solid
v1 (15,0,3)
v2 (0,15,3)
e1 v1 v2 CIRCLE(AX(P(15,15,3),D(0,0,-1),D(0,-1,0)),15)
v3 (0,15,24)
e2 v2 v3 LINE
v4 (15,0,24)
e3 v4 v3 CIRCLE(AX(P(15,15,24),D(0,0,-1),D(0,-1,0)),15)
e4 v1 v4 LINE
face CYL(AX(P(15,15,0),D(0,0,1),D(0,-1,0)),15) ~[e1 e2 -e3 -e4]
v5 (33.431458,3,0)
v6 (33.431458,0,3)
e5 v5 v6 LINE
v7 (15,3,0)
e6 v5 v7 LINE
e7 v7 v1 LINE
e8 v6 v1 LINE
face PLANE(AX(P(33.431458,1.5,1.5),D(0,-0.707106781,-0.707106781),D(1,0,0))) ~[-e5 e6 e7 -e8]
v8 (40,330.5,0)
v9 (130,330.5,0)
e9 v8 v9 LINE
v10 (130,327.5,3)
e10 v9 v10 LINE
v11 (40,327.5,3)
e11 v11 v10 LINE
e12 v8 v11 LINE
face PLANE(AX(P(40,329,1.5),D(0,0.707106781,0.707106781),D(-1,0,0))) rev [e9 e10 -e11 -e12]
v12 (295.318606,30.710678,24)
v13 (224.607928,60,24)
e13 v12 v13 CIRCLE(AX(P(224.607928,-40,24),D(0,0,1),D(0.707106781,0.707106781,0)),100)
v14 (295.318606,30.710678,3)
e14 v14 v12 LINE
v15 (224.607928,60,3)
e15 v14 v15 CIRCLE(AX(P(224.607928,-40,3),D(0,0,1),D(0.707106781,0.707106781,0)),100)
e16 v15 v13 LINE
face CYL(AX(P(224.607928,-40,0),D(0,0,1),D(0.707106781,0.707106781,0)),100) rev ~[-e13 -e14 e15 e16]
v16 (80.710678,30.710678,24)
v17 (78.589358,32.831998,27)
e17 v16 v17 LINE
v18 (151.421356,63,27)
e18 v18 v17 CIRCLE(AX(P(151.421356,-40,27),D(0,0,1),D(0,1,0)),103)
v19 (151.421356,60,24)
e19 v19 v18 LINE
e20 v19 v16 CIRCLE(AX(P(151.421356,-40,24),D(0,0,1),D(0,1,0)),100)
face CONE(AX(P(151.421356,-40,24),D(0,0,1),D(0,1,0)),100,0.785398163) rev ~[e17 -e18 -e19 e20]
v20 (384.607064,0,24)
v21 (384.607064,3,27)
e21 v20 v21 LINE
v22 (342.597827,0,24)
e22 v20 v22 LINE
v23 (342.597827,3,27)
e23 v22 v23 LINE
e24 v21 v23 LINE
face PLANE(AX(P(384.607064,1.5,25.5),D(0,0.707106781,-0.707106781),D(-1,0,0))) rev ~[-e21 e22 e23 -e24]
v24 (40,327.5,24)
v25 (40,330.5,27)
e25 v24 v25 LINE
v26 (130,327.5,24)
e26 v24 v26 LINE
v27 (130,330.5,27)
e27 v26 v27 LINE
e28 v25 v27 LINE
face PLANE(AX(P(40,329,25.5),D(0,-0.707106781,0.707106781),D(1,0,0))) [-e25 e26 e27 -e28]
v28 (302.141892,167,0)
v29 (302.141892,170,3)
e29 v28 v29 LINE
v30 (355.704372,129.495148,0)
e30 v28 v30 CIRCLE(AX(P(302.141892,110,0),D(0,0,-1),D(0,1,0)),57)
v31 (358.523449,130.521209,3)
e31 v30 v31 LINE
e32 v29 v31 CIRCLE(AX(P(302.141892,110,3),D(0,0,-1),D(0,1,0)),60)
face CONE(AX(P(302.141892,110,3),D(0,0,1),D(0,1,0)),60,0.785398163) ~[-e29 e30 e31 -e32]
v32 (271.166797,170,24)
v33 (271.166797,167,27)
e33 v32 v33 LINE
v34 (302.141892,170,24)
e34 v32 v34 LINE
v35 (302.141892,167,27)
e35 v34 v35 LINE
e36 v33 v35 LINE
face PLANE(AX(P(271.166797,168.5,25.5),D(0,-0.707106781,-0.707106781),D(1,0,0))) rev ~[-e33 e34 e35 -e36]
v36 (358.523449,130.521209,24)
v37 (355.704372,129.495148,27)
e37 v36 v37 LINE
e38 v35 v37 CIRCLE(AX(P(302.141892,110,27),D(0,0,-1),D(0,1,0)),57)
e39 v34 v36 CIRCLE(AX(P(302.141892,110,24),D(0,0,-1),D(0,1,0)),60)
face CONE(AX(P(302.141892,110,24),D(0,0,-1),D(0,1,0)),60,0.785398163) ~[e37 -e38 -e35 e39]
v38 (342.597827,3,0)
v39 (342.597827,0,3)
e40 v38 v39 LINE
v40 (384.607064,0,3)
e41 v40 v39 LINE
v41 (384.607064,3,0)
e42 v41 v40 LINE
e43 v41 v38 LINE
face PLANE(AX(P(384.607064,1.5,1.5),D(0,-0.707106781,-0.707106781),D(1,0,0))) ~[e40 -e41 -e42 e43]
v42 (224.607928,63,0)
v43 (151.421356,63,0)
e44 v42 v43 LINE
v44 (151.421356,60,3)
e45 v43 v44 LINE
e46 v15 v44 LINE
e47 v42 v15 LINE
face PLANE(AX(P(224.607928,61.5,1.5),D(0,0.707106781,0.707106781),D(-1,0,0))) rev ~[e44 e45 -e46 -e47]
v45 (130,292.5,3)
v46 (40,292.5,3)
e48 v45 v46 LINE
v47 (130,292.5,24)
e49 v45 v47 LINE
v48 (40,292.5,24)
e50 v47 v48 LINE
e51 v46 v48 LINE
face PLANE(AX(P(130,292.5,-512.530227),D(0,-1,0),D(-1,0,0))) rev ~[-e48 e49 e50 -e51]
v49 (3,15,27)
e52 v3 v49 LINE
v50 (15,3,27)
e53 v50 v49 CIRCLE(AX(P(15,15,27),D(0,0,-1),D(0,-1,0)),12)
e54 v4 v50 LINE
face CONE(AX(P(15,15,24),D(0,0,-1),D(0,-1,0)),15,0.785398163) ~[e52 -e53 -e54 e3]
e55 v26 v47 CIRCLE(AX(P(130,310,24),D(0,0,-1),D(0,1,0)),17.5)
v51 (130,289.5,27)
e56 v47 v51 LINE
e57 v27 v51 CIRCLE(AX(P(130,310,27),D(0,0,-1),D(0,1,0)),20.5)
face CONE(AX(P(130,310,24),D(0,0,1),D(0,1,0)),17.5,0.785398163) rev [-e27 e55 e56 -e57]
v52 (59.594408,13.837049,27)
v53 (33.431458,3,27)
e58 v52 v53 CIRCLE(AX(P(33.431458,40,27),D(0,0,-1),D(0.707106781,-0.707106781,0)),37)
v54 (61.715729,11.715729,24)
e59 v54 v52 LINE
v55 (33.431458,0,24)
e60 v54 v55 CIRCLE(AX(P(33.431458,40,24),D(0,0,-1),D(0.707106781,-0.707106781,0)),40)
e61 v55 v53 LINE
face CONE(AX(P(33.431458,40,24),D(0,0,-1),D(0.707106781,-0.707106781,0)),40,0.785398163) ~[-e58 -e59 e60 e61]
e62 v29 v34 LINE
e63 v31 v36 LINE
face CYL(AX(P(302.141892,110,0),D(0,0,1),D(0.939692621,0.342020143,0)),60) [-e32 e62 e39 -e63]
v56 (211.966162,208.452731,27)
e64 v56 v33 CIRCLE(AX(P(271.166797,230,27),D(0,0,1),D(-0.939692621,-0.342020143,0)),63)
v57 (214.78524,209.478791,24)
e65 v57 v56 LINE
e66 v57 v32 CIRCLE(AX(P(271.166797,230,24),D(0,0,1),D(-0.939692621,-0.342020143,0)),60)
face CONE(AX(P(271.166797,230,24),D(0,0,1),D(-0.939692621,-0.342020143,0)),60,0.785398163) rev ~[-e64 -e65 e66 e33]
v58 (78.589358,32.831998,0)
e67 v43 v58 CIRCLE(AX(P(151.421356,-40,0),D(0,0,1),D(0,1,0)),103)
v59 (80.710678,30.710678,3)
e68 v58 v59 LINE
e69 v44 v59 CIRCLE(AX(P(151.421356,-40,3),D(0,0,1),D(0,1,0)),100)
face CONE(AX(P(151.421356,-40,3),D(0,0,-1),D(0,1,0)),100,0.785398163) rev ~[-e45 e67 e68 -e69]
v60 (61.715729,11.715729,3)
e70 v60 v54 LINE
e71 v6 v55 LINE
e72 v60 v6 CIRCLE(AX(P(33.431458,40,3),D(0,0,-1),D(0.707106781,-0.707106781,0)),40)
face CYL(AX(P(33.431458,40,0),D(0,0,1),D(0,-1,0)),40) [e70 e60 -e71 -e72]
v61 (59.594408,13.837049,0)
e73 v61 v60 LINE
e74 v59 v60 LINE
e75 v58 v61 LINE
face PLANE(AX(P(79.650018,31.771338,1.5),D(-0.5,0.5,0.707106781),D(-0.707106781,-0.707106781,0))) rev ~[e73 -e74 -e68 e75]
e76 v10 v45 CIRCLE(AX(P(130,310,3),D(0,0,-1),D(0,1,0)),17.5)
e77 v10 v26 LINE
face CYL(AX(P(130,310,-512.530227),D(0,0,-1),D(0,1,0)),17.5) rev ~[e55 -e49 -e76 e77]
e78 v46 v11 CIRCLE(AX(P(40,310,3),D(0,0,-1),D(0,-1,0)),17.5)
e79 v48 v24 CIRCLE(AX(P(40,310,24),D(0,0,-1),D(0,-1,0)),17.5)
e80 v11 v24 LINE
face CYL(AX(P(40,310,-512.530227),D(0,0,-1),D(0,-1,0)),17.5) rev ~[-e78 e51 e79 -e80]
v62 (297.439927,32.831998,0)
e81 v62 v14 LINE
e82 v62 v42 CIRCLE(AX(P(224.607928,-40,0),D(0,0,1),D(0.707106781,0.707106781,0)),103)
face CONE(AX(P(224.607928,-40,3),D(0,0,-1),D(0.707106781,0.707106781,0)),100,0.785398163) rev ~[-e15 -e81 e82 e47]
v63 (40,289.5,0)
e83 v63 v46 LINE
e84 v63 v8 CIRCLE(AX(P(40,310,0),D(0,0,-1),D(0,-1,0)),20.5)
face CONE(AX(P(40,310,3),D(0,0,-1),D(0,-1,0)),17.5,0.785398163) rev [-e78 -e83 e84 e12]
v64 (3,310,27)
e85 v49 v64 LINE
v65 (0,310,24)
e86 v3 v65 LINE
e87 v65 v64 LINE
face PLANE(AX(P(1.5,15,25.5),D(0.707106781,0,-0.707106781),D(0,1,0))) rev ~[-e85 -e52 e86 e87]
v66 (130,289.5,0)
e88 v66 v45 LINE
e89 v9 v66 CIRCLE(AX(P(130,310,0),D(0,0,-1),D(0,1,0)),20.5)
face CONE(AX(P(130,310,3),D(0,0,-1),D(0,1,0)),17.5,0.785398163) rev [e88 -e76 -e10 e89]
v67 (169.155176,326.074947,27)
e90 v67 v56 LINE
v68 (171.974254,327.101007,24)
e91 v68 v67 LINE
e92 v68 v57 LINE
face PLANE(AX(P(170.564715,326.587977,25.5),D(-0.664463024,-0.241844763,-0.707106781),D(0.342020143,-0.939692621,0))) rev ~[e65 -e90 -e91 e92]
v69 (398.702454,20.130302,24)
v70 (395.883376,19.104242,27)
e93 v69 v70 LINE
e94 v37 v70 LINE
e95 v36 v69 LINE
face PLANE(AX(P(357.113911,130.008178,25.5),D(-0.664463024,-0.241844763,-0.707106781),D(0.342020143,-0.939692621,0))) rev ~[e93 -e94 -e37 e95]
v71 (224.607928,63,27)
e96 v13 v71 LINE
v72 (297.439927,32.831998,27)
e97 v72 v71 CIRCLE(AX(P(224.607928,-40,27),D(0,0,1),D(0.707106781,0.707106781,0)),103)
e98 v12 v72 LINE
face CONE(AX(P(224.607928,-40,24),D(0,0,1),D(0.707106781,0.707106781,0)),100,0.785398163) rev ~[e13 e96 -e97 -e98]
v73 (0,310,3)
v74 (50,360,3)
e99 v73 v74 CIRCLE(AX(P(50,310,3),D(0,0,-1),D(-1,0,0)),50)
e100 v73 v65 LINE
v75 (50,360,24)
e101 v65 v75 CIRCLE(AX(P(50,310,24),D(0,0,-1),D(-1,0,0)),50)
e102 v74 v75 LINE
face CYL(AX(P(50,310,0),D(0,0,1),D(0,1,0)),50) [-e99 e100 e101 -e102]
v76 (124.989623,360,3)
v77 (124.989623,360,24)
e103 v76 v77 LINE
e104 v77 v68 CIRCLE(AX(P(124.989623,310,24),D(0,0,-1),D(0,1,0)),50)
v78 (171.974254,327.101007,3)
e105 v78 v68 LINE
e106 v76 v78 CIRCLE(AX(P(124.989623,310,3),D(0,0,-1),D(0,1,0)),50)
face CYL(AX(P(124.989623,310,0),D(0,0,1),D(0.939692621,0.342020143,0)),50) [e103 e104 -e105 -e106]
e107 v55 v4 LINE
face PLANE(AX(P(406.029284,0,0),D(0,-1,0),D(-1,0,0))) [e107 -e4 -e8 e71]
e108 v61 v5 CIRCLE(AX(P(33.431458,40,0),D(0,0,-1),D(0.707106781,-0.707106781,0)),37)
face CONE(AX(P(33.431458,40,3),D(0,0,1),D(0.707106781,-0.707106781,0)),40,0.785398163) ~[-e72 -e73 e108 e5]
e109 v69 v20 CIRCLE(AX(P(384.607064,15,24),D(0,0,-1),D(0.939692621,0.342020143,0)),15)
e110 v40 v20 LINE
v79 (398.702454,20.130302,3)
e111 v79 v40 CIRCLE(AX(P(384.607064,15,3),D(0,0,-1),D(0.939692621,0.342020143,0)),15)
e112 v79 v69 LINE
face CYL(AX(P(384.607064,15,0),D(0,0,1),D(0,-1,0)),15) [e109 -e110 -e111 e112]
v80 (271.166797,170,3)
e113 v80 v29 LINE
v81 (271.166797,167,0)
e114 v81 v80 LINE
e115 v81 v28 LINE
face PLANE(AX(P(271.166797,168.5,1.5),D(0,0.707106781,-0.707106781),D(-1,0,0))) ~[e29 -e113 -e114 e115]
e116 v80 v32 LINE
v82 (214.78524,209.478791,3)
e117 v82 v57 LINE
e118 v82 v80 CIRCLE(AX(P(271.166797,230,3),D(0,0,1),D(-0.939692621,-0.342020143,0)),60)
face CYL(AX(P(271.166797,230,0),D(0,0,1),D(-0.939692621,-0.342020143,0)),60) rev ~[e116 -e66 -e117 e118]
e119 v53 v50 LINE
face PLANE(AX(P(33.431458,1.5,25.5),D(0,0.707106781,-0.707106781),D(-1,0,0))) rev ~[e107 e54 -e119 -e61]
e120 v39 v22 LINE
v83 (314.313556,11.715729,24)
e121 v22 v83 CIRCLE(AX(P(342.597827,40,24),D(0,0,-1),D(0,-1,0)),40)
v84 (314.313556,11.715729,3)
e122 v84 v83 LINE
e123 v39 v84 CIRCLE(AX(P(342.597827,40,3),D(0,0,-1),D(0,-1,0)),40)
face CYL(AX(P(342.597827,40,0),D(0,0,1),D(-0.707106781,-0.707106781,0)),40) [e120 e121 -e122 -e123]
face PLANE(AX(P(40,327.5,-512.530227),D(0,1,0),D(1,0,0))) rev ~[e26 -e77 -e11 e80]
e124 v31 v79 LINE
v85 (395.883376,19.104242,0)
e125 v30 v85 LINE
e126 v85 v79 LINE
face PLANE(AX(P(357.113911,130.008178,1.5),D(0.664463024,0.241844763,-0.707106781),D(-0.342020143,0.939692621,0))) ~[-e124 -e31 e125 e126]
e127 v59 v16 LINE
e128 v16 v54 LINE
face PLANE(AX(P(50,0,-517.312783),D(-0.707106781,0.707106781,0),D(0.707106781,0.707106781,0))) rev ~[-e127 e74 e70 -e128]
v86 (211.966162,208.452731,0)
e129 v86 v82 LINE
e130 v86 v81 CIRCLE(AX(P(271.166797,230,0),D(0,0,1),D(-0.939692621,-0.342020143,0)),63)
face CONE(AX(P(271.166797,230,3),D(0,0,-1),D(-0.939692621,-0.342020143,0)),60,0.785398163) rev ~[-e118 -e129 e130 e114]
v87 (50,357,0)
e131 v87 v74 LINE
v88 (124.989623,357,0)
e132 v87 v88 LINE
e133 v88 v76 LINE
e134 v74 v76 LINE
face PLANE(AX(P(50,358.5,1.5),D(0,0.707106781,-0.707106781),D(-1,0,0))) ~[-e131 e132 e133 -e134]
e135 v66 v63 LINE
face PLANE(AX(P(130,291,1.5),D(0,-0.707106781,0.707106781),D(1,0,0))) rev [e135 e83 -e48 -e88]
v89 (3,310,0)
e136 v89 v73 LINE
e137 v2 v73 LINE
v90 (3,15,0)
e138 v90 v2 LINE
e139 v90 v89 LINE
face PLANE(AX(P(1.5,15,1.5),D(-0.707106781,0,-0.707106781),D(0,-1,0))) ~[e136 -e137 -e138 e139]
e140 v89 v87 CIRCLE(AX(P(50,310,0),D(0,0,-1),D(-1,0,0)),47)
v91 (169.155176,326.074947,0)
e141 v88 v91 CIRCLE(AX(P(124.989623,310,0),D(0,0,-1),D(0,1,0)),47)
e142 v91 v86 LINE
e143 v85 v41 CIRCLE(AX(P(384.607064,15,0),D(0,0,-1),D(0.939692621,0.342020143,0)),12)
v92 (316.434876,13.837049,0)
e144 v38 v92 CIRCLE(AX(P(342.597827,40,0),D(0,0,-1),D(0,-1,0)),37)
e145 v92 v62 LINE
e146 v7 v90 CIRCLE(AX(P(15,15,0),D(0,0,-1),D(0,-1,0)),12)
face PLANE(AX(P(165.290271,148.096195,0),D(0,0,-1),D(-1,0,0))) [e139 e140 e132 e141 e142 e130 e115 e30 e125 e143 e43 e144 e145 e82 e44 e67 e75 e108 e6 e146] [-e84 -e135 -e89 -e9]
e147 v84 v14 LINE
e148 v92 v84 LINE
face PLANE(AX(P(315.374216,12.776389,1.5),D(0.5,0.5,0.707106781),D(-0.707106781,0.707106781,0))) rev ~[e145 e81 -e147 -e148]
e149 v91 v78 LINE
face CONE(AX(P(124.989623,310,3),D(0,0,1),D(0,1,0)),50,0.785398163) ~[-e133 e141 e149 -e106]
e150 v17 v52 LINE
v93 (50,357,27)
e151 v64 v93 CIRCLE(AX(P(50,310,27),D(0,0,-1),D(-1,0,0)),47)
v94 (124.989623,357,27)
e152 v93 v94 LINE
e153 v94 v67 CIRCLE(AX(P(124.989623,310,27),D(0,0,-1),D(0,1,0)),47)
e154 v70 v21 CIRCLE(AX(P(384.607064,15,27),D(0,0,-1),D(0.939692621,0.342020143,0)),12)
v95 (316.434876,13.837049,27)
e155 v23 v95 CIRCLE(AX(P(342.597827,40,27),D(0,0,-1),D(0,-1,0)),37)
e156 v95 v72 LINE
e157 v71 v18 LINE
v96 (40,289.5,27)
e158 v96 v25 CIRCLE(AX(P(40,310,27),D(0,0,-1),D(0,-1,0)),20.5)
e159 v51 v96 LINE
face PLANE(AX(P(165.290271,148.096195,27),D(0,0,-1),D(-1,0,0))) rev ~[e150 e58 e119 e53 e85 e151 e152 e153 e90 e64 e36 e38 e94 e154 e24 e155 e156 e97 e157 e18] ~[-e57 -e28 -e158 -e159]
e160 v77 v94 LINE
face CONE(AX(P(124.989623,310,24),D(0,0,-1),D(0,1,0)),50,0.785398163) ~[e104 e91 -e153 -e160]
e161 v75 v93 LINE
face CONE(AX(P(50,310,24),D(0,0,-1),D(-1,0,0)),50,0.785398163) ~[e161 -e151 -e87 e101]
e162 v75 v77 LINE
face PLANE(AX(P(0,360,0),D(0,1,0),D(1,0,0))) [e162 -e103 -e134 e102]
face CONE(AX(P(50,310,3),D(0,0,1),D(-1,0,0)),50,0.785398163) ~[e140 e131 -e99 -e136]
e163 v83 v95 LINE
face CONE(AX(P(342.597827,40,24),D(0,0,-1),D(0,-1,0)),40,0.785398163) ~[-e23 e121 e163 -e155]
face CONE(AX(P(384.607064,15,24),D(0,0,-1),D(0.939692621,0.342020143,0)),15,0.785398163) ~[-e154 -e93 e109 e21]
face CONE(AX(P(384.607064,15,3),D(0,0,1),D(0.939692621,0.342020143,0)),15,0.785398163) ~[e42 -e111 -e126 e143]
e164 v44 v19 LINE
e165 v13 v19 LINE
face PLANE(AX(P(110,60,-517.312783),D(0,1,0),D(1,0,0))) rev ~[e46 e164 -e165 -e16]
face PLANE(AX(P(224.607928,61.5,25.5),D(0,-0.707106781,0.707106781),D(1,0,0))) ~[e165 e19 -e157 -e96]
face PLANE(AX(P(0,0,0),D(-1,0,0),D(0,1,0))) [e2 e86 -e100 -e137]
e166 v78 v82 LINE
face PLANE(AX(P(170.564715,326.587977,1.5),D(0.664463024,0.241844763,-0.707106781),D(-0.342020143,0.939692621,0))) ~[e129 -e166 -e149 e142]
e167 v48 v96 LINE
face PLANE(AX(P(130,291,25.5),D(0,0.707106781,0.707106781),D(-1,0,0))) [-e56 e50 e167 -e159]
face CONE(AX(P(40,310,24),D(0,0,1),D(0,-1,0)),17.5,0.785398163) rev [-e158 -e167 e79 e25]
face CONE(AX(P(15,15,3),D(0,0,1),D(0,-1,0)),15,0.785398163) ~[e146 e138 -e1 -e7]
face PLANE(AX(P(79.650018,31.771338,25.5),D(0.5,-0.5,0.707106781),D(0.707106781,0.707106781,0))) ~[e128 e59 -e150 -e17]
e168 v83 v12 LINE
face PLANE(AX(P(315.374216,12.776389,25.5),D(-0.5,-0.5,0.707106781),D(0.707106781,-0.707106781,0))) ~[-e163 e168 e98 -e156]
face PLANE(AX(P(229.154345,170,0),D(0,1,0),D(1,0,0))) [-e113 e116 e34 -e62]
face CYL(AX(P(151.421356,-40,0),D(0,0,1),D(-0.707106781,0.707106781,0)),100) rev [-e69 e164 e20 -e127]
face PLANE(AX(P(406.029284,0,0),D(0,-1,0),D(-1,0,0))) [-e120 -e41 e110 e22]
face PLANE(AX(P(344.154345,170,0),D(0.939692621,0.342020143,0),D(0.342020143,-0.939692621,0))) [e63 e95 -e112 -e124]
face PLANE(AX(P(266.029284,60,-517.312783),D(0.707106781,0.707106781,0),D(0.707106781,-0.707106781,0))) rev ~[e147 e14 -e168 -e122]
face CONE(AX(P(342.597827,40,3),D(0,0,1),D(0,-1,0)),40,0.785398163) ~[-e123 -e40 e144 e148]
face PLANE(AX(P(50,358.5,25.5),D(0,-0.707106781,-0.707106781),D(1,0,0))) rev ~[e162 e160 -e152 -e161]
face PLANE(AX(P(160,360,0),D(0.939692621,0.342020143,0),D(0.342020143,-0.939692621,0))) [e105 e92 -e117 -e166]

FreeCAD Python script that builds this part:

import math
import FreeCAD as App
import Part
import Sketcher
Q = App.Units.Quantity


def edges_at(feature, points):
    """Names of the edges that pass closest to the given points."""
    edges = feature.Shape.Edges
    near = lambda p: min(range(len(edges)), key=lambda i: edges[i].distToShape(Part.Vertex(*p))[0])
    return sorted({f"Edge{near(p) + 1}" for p in points})


def add_polygon(sketch, points):
    """Adds a closed chain of lines whose ends are joined by coincident constraints."""
    first, n = sketch.GeometryCount, len(points)
    for a, b in zip(points, points[1:] + points[:1]):
        sketch.addGeometry(Part.LineSegment(App.Vector(*a, 0), App.Vector(*b, 0)), False)
    for i in range(n):
        sketch.addConstraint(Sketcher.Constraint("Coincident", first + i, 2, first + (i + 1) % n, 1))

doc = App.newDocument("Part")
params = doc.addObject("Spreadsheet::Sheet", "Params")
for row, (alias, value) in enumerate([
    ("sketch1_width", "115 mm"),
    ("sketch1_width2", "160 mm"),
    ("sketch1_height", "360 mm"),
    ("pad1_length", "27 mm"),
    ("fillet_radius", "60 mm"),
    ("fillet2_radius", "50 mm"),
    ("fillet3_radius", "100 mm"),
    ("fillet4_radius", "15 mm"),
    ("fillet5_radius", "40 mm"),
    ("sketch3_radius", "17.5 mm"),
    ("sketch3_width", "90 mm"),
    ("chamfer_size", "3 mm"),
], start=1):
    params.set(f"A{row}", alias)
    params.set(f"B{row}", "=" + value)
    params.setAlias(f"B{row}", alias)

body = doc.addObject("PartDesign::Body", "Body")

sketch1 = body.newObject("Sketcher::SketchObject", "Sketch")
sketch1.AttachmentSupport = (doc.getObject("XY_Plane"), [""])
sketch1.MapMode = "FlatFace"
add_polygon(sketch1, [(0, 360), (0, 0), (406.029284, 0), (344.154345, 170), (229.154345, 170), (160, 360)])
sketch1.addConstraint([
    Sketcher.Constraint("Vertical", 0),
    Sketcher.Constraint("Horizontal", 1),
    Sketcher.Constraint("Horizontal", 3),
    Sketcher.Constraint("Horizontal", 5),
    Sketcher.Constraint("Coincident", 0, 2, -1, 1),
    Sketcher.Constraint("Parallel", 2, 4),
    Sketcher.Constraint("DistanceX", 3, 2, 3, 1, Q("115 mm")),
    Sketcher.Constraint("DistanceX", 5, 2, 5, 1, Q("160 mm")),
    Sketcher.Constraint("DistanceY", 0, 2, 0, 1, Q("360 mm")),
    Sketcher.Constraint("Angle", 2, Q("110 deg")),
    Sketcher.Constraint("DistanceY", -1, 1, 2, 2, Q("170 mm")),
])
sketch1.setExpression("Constraints[12]", "Params.sketch1_width")
sketch1.setExpression("Constraints[13]", "Params.sketch1_width2")
sketch1.setExpression("Constraints[14]", "Params.sketch1_height")
pad1 = body.newObject("PartDesign::Pad", "Pad")
pad1.Profile = sketch1
pad1.setExpression("Length", "Params.pad1_length")

sketch2 = body.newObject("Sketcher::SketchObject", "Sketch001")
sketch2.AttachmentSupport = (doc.getObject("XY_Plane"), [""])
sketch2.MapMode = "FlatFace"
sketch2.AttachmentOffset = App.Placement(App.Vector(0, 0, 27), App.Rotation())
add_polygon(sketch2, [(110, 60), (50, 0), (326.029284, 0), (266.029284, 60)])
sketch2.addConstraint([
    Sketcher.Constraint("Horizontal", 1),
    Sketcher.Constraint("Horizontal", 3),
    Sketcher.Constraint("PointOnObject", 0, 2, -1),
    Sketcher.Constraint("Perpendicular", 0, 2),
    Sketcher.Constraint("Equal", 0, 2),
    Sketcher.Constraint("DistanceX", -1, 1, 0, 2, Q("50 mm")),
    Sketcher.Constraint("DistanceY", -1, 1, 2, 2, Q("60 mm")),
    Sketcher.Constraint("DistanceX", 1, 1, 1, 2, Q("276.029284 mm")),
])
pocket1 = body.newObject("PartDesign::Pocket", "Pocket")
pocket1.Profile = sketch2
pocket1.Type = "ThroughAll"
pocket1.Midplane = True
doc.recompute()

fillet = body.newObject("PartDesign::Fillet", "Fillet")
fillet.Base = (pocket1, edges_at(pocket1, [(229.154, 170, 13.5), (344.154, 170, 13.5)]))
fillet.setExpression("Radius", "Params.fillet_radius")
doc.recompute()

fillet2 = body.newObject("PartDesign::Fillet", "Fillet001")
fillet2.Base = (fillet, edges_at(fillet, [(0, 360, 13.5), (160, 360, 13.5)]))
fillet2.setExpression("Radius", "Params.fillet2_radius")
doc.recompute()

fillet3 = body.newObject("PartDesign::Fillet", "Fillet002")
fillet3.Base = (fillet2, edges_at(fillet2, [(110, 60, 13.5), (266.029, 60, 13.5)]))
fillet3.setExpression("Radius", "Params.fillet3_radius")
doc.recompute()

fillet4 = body.newObject("PartDesign::Fillet", "Fillet003")
fillet4.Base = (fillet3, edges_at(fillet3, [(0, 0, 13.5), (406.029, 0, 13.5)]))
fillet4.setExpression("Radius", "Params.fillet4_radius")
doc.recompute()

fillet5 = body.newObject("PartDesign::Fillet", "Fillet004")
fillet5.Base = (fillet4, edges_at(fillet4, [(326.029, 0, 13.5), (50, 0, 13.5)]))
fillet5.setExpression("Radius", "Params.fillet5_radius")

sketch3 = body.newObject("Sketcher::SketchObject", "Sketch002")
sketch3.AttachmentSupport = (doc.getObject("XY_Plane"), [""])
sketch3.MapMode = "FlatFace"
sketch3.AttachmentOffset = App.Placement(App.Vector(0, 0, 27), App.Rotation())
sketch3.addGeometry([
    Part.LineSegment(App.Vector(130, 327.5, 0), App.Vector(40, 327.5, 0)),
    Part.ArcOfCircle(Part.Circle(App.Vector(40, 310, 0), App.Vector(0, 0, 1), 17.5), math.radians(90), math.radians(270)),
    Part.LineSegment(App.Vector(40, 292.5, 0), App.Vector(130, 292.5, 0)),
    Part.ArcOfCircle(Part.Circle(App.Vector(130, 310, 0), App.Vector(0, 0, 1), 17.5), math.radians(-90), math.radians(90)),
], False)
sketch3.addConstraint([
    Sketcher.Constraint("Tangent", 0, 2, 1, 1),
    Sketcher.Constraint("Tangent", 1, 2, 2, 1),
    Sketcher.Constraint("Tangent", 2, 2, 3, 1),
    Sketcher.Constraint("Tangent", 3, 2, 0, 1),
    Sketcher.Constraint("Horizontal", 0),
    Sketcher.Constraint("Horizontal", 2),
    Sketcher.Constraint("Radius", 1, Q("17.5 mm")),
    Sketcher.Constraint("DistanceX", 0, 2, 0, 1, Q("90 mm")),
    Sketcher.Constraint("DistanceX", -1, 1, 1, 3, Q("40 mm")),
    Sketcher.Constraint("DistanceY", -1, 1, 1, 3, Q("310 mm")),
])
sketch3.setExpression("Constraints[6]", "Params.sketch3_radius")
sketch3.setExpression("Constraints[7]", "Params.sketch3_width")
pocket2 = body.newObject("PartDesign::Pocket", "Pocket001")
pocket2.Profile = sketch3
pocket2.Type = "ThroughAll"
pocket2.Midplane = True
doc.recompute()

chamfer = body.newObject("PartDesign::Chamfer", "Chamfer")
chamfer.Base = (pocket2, edges_at(pocket2, [
    (22.5, 310, 0),
    (85, 327.5, 0),
    (147.5, 310, 0),
    (85, 292.5, 0),
    (22.5, 310, 27),
    (85, 292.5, 27),
    (147.5, 310, 27),
    (85, 327.5, 27),
    (286.654, 170, 0),
    (286.654, 170, 27),
    (193.38, 268.29, 0),
    (336.556, 159.149, 0),
    (193.38, 268.29, 27),
    (336.556, 159.149, 27),
    (236.752, 180.851, 0),
    (236.752, 180.851, 27),
    (0, 162.5, 0),
    (0, 162.5, 27),
    (87.495, 360, 0),
    (153.668, 350.958, 0),
    (14.645, 345.355, 0),
    (87.495, 360, 27),
    (153.668, 350.958, 27),
    (14.645, 345.355, 27),
    (188.015, 60, 0),
    (188.015, 60, 27),
    (304.816, 21.213, 27),
    (71.213, 21.213, 0),
    (262.876, 52.388, 27),
    (262.876, 52.388, 0),
    (113.153, 52.388, 27),
    (113.153, 52.388, 0),
    (24.216, 0, 0),
    (24.216, 0, 27),
    (378.613, 75.326, 0),
    (396.894, 6.396, 0),
    (4.393, 4.393, 0),
    (378.613, 75.326, 27),
    (396.894, 6.396, 27),
    (4.393, 4.393, 27),
    (304.816, 21.213, 0),
    (71.213, 21.213, 27),
    (363.602, 0, 27),
    (48.739, 3.045, 27),
    (327.29, 3.045, 27),
    (363.602, 0, 0),
    (48.739, 3.045, 0),
    (327.29, 3.045, 0),
]))
chamfer.setExpression("Size", "Params.chamfer_size")

doc.recompute()
